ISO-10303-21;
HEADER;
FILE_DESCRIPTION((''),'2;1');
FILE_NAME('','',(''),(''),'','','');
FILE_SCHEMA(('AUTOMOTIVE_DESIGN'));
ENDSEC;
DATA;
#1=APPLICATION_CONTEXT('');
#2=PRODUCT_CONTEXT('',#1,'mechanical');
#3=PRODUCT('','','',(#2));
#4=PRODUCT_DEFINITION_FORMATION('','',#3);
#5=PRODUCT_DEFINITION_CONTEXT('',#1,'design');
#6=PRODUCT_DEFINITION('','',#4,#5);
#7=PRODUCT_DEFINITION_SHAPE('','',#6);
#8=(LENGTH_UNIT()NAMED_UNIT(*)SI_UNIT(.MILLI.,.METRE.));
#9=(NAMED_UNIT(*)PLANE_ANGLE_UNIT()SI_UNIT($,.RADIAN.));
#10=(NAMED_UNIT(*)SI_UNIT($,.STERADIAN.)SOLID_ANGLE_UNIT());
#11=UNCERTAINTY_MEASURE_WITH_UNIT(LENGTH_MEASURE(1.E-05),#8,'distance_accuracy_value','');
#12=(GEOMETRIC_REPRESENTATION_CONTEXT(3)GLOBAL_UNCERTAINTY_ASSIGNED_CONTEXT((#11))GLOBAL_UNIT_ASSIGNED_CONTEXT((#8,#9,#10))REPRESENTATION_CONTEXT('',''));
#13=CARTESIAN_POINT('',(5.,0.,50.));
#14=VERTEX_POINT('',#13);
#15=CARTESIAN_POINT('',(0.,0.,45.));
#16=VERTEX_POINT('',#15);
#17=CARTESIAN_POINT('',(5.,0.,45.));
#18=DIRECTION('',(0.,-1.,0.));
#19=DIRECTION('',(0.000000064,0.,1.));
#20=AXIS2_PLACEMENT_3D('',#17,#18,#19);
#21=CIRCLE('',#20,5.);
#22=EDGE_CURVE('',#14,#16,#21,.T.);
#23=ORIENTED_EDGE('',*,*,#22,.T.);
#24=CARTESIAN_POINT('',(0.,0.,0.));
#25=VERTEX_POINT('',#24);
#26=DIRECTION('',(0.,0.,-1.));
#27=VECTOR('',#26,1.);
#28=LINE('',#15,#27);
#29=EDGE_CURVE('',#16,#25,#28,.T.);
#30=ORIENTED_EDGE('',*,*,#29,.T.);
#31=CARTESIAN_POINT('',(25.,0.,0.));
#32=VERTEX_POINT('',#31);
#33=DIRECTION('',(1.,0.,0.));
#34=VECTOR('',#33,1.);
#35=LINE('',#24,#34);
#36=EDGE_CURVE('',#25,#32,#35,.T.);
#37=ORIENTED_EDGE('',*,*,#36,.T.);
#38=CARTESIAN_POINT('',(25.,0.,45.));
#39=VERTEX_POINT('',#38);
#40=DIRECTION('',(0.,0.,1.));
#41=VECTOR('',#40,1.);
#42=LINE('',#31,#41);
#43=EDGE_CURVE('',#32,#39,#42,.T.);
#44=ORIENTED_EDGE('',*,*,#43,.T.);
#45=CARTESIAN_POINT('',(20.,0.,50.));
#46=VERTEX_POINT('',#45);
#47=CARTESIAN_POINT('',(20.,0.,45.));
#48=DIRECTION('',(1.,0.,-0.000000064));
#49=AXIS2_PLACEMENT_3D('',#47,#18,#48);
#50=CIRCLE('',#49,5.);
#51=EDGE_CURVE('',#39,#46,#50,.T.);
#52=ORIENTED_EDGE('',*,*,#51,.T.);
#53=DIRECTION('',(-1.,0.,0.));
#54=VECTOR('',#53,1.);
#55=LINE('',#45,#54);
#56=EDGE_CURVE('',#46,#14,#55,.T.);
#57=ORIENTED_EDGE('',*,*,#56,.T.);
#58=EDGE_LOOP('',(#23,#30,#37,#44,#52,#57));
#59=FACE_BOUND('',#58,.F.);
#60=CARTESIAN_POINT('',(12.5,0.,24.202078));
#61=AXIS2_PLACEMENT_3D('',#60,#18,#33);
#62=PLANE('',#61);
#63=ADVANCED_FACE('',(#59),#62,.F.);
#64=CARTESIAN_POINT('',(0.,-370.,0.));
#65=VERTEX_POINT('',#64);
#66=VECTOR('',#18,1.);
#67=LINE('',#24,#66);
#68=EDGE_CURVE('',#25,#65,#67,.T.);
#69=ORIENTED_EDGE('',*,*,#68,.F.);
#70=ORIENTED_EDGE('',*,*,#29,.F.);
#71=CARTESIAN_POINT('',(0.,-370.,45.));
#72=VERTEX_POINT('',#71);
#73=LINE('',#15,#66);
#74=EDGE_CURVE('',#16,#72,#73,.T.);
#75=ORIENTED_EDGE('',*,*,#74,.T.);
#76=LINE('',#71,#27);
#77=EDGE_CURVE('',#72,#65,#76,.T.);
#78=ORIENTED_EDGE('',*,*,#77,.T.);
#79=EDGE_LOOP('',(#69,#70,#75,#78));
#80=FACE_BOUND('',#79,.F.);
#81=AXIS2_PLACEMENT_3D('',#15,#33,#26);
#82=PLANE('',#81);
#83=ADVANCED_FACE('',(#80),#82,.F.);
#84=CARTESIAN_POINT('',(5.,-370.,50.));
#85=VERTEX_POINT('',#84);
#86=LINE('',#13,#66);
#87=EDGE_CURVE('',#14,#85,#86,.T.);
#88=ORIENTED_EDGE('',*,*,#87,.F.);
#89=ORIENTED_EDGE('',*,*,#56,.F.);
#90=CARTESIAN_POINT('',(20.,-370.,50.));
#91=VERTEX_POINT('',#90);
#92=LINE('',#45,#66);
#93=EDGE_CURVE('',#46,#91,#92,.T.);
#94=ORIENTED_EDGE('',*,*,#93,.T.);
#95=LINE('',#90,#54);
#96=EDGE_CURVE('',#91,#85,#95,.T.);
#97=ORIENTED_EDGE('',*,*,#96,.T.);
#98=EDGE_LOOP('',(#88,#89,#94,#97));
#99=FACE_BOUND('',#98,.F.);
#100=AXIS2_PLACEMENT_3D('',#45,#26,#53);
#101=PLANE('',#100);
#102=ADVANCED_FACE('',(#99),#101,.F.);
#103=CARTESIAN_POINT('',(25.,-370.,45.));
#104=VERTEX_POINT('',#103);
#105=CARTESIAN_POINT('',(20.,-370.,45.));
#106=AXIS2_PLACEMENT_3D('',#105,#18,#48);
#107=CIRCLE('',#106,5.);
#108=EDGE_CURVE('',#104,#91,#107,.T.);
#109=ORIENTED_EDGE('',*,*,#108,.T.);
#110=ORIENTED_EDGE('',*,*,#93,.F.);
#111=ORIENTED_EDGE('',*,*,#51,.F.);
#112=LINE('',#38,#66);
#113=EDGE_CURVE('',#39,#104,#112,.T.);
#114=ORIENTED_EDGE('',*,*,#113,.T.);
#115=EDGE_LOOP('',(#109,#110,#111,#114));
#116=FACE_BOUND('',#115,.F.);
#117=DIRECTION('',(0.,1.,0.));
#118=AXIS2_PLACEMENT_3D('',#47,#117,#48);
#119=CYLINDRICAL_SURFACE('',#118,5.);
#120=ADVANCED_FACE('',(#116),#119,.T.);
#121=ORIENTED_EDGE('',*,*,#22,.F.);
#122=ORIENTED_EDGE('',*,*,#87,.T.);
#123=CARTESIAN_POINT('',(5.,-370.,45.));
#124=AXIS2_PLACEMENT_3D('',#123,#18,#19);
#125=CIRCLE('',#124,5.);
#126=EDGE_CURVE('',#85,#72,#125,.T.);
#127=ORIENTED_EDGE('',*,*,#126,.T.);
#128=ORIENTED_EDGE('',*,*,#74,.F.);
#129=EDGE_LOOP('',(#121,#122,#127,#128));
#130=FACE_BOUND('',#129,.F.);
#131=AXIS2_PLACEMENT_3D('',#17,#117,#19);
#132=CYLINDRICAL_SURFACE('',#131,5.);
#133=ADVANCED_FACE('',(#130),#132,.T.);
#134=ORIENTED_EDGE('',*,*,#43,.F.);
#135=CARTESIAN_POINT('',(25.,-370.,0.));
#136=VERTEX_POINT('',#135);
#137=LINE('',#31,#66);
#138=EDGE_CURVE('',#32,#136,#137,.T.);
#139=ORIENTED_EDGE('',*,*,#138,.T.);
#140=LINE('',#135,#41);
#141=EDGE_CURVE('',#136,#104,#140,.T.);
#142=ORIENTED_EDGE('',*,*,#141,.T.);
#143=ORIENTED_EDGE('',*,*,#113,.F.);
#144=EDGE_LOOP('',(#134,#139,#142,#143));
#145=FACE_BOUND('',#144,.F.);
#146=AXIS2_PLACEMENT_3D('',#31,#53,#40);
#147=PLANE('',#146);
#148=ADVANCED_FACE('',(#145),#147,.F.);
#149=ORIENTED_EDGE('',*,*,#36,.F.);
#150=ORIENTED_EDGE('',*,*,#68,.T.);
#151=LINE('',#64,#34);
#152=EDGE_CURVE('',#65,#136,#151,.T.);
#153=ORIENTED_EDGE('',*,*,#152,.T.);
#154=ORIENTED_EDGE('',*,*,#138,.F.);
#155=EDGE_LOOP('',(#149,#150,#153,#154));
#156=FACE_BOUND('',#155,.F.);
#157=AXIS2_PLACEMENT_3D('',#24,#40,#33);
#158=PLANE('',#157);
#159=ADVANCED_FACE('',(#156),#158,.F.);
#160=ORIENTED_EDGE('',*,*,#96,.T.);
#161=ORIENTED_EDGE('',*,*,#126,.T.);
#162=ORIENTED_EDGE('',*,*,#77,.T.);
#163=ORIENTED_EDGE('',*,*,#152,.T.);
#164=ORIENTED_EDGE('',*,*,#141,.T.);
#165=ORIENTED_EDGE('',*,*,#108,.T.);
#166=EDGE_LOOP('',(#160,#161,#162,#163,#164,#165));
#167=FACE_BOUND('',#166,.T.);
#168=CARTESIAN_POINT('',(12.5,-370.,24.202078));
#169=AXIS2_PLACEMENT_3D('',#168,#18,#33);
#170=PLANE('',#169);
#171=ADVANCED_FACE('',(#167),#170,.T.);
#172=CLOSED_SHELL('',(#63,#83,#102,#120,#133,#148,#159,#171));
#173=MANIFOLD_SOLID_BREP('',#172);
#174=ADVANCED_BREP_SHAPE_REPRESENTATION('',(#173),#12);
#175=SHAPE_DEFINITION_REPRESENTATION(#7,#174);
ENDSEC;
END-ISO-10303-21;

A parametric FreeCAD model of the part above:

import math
import FreeCAD as App
import Part
import Sketcher

doc = App.newDocument("Part")
body = doc.addObject("PartDesign::Body", "Body")

sketch1 = doc.addObject("Sketcher::SketchObject", "Sketch")
body.addObject(sketch1)
sketch1.AttachmentSupport = (doc.XZ_Plane, [""])
sketch1.MapMode = "FlatFace"
sketch1.addGeometry([
    Part.LineSegment(App.Vector(0, 45, 0), App.Vector(0, 0, 0)),
    Part.LineSegment(App.Vector(0, 0, 0), App.Vector(25, 0, 0)),
    Part.LineSegment(App.Vector(25, 0, 0), App.Vector(25, 45, 0)),
    Part.ArcOfCircle(Part.Circle(App.Vector(20, 45, 0), App.Vector(0, 0, 1), 5), math.radians(0), math.radians(90)),
    Part.LineSegment(App.Vector(20, 50, 0), App.Vector(5, 50, 0)),
    Part.ArcOfCircle(Part.Circle(App.Vector(5, 45, 0), App.Vector(0, 0, 1), 5), math.radians(90), math.radians(180)),
], False)
sketch1.addConstraint([
    Sketcher.Constraint("Coincident", 0, 2, 1, 1),
    Sketcher.Constraint("Coincident", 1, 2, 2, 1),
    Sketcher.Constraint("Tangent", 2, 2, 3, 1),
    Sketcher.Constraint("Tangent", 3, 2, 4, 1),
    Sketcher.Constraint("Tangent", 4, 2, 5, 1),
    Sketcher.Constraint("Tangent", 5, 2, 0, 1),
    Sketcher.Constraint("Vertical", 0),
    Sketcher.Constraint("Horizontal", 1),
    Sketcher.Constraint("Vertical", 2),
    Sketcher.Constraint("Horizontal", 4),
    Sketcher.Constraint("Coincident", 0, 2, -1, 1),
    Sketcher.Constraint("Equal", 3, 5),
    Sketcher.Constraint("Radius", 3, 5.0),
    Sketcher.Constraint("DistanceX", 1, 1, 1, 2, 25.0),
    Sketcher.Constraint("DistanceY", 0, 2, 0, 1, 45.0),
])
pad1 = doc.addObject("PartDesign::Pad", "Pad")
body.addObject(pad1)
pad1.Profile = sketch1
pad1.Length = 370

doc.recompute()
